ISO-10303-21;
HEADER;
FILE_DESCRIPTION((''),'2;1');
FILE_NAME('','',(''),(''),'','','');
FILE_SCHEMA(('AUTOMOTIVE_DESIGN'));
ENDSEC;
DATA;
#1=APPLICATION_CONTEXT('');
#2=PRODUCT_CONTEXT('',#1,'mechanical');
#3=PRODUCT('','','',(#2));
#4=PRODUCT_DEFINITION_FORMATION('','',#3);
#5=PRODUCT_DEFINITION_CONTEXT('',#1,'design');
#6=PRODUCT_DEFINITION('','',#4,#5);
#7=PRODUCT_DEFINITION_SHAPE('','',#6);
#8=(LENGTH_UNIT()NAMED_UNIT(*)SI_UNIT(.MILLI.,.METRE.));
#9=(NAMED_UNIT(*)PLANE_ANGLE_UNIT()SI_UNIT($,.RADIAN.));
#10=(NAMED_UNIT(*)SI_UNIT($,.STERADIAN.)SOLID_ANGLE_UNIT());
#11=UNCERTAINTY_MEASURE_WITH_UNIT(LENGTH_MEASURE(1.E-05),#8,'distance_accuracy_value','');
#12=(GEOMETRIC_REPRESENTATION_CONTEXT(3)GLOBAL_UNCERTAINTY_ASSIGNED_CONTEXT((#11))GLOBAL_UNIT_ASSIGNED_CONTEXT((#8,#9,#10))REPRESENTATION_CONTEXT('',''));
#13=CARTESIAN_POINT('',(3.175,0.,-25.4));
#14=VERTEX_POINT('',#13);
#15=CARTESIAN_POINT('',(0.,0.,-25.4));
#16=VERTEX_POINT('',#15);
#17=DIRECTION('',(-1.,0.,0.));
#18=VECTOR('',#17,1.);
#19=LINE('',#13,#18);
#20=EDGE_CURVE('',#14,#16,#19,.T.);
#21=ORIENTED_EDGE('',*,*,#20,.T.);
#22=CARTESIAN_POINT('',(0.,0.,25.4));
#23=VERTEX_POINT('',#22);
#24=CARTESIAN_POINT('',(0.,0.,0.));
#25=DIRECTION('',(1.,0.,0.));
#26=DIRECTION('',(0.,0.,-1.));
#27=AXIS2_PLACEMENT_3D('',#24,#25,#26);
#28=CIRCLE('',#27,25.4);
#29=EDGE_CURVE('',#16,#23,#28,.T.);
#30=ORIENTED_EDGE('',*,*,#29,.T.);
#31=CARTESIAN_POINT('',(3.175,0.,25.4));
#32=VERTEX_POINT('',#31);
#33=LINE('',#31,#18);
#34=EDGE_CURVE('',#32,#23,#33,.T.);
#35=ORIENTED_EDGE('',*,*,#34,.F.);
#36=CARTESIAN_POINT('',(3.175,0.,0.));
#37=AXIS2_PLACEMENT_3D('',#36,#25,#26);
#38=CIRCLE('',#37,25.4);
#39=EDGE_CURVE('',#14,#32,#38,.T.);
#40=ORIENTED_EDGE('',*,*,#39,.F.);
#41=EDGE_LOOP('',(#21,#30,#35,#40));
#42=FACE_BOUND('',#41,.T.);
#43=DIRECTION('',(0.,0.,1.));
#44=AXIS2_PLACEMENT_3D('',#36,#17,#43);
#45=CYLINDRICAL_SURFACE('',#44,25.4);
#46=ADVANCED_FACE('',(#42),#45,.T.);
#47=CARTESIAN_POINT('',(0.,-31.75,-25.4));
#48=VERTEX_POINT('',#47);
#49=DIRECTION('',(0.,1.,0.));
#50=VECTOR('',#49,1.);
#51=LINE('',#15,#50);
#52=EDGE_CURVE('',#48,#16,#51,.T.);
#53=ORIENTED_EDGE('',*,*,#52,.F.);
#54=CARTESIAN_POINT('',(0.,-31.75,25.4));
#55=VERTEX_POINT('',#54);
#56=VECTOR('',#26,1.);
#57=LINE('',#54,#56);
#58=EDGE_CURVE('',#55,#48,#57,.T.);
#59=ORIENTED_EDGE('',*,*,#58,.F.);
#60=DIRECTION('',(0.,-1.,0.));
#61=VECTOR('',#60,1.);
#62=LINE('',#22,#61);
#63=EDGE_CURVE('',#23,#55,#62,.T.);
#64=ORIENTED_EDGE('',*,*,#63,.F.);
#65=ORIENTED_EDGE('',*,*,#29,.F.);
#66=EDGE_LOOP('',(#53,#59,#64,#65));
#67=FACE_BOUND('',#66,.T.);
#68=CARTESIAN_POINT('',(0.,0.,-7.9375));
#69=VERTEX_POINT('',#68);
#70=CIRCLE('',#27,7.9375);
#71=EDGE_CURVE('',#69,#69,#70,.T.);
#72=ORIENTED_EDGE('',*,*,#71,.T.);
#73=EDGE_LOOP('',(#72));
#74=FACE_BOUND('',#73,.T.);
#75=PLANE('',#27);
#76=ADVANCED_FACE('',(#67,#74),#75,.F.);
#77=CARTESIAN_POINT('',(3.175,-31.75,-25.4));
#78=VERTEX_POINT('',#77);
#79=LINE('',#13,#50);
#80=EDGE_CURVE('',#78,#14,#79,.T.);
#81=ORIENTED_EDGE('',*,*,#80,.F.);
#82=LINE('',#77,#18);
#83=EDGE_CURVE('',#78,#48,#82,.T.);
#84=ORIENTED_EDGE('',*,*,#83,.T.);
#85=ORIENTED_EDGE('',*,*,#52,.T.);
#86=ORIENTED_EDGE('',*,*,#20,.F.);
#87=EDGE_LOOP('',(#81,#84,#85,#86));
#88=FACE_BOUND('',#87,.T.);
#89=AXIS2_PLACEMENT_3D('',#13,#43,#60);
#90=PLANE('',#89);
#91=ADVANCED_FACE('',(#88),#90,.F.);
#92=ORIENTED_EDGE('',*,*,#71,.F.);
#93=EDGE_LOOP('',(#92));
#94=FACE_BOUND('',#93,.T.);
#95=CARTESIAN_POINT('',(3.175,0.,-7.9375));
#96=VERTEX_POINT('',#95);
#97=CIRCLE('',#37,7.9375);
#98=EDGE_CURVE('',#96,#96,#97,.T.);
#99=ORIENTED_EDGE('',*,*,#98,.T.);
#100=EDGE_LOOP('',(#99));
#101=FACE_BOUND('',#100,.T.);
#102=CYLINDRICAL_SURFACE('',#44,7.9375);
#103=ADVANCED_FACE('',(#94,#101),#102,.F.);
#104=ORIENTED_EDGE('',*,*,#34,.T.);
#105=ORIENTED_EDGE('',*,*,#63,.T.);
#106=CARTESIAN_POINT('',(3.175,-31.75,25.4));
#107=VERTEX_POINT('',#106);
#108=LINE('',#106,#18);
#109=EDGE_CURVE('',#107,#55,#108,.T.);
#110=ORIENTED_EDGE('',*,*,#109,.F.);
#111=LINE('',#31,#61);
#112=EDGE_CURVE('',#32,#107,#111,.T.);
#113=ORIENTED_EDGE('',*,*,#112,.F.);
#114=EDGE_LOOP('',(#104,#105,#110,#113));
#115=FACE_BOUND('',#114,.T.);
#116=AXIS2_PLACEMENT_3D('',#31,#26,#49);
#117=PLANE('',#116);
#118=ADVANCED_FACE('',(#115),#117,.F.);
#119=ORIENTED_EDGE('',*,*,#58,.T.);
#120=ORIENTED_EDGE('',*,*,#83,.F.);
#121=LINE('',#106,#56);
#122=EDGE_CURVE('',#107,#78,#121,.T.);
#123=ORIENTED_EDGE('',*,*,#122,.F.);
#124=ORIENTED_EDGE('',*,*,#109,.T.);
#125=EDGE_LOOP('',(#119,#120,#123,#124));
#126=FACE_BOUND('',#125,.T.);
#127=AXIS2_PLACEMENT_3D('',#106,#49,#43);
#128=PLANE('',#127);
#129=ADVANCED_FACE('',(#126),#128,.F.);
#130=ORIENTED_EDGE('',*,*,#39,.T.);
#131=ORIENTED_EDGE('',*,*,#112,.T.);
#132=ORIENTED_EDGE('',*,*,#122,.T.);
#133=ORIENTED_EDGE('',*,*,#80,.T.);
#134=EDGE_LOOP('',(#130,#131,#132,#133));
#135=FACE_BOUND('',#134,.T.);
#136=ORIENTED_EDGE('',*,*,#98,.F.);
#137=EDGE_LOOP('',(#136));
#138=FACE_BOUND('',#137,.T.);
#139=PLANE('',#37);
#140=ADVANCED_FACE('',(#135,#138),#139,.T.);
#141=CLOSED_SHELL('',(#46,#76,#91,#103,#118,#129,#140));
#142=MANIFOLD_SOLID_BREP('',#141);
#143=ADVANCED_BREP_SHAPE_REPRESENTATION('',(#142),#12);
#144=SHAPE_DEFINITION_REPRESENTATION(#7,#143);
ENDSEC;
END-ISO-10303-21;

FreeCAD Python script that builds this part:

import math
import FreeCAD as App
import Part
import Sketcher

V = App.Vector
Q = App.Units.Quantity

doc = App.newDocument("Part")
params = doc.addObject("Spreadsheet::Sheet", "Params")
for row, (alias, value) in enumerate([
    ("sketch1_radius", "1 in"),
    ("sketch1_diameter", "0.625 in"),
    ("sketch1_width", "1.25 in"),
    ("pad1_length", "0.125 in"),
], start=1):
    params.set(f"A{row}", alias)
    params.set(f"B{row}", "=" + value)
    params.setAlias(f"B{row}", alias)

body = doc.addObject("PartDesign::Body", "Body")

# Sketch on YZ plane
sketch1 = body.newObject("Sketcher::SketchObject", "Sketch")
sketch1.AttachmentSupport = (doc.getObject("YZ_Plane"), [""])
sketch1.MapMode = "FlatFace"
sketch1.addGeometry([
    Part.LineSegment(V(0, 25.4, 0), V(-31.75, 25.4, 0)),  # 0
    Part.LineSegment(V(-31.75, 25.4, 0), V(-31.75, -25.4, 0)),  # 1
    Part.LineSegment(V(-31.75, -25.4, 0), V(0, -25.4, 0)),  # 2
    Part.ArcOfCircle(Part.Circle(V(0, 0, 0), V(0, 0, 1), 25.4), math.radians(-90), math.radians(90)),  # 3
    Part.Circle(V(0, 0, 0), V(0, 0, 1), 7.9375),  # 4
], False)
sketch1.addConstraint([
    Sketcher.Constraint("Coincident", 0, 2, 1, 1),
    Sketcher.Constraint("Coincident", 1, 2, 2, 1),
    Sketcher.Constraint("Tangent", 2, 2, 3, 1),
    Sketcher.Constraint("Tangent", 3, 2, 0, 1),
    Sketcher.Constraint("Horizontal", 0),
    Sketcher.Constraint("Vertical", 1),
    Sketcher.Constraint("Horizontal", 2),
    Sketcher.Constraint("Coincident", 3, 3, -1, 1),
    Sketcher.Constraint("Coincident", 4, 3, -1, 1),
    Sketcher.Constraint("Radius", 3, Q("1 in")),
    Sketcher.Constraint("Diameter", 4, Q("0.625 in")),
    Sketcher.Constraint("DistanceX", 0, 2, 0, 1, Q("1.25 in")),
])
sketch1.setExpression("Constraints[9]", "Params.sketch1_radius")
sketch1.setExpression("Constraints[10]", "Params.sketch1_diameter")
sketch1.setExpression("Constraints[11]", "Params.sketch1_width")
pad1 = body.newObject("PartDesign::Pad", "Pad")
pad1.Profile = sketch1
pad1.setExpression("Length", "Params.pad1_length")

doc.recompute()
